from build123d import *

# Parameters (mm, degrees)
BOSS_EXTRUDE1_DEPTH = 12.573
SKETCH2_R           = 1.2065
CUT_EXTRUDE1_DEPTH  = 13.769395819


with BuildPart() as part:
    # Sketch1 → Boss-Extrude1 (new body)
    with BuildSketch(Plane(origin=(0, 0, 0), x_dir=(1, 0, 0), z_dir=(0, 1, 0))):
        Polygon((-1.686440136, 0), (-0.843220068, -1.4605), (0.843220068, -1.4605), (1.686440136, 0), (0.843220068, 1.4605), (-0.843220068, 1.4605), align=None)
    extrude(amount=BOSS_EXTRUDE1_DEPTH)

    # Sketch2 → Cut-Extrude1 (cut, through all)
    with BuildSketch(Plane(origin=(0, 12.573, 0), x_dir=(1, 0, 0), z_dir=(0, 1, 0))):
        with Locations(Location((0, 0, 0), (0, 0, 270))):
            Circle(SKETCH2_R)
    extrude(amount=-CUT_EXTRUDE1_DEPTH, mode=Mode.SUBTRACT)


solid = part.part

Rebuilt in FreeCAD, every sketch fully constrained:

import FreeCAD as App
import Part
import Sketcher
from FreeCAD import Vector
Q = App.Units.Quantity


def add_polygon(sketch, points):
    """Adds a closed chain of lines whose ends are joined by coincident constraints."""
    first, n = sketch.GeometryCount, len(points)
    for a, b in zip(points, points[1:] + points[:1]):
        sketch.addGeometry(Part.LineSegment(App.Vector(*a, 0), App.Vector(*b, 0)), False)
    for i in range(n):
        sketch.addConstraint(Sketcher.Constraint("Coincident", first + i, 2, first + (i + 1) % n, 1))

doc = App.newDocument("Part")
body = doc.addObject("PartDesign::Body", "Body")

sketch1 = body.newObject("Sketcher::SketchObject", "Sketch")
sketch1.AttachmentSupport = (doc.getObject("XZ_Plane"), [""])
sketch1.MapMode = "FlatFace"
add_polygon(sketch1, [(-1.7, 0), (-0.8, 1.5), (0.8, 1.5), (1.7, 0), (0.8, -1.5), (-0.8, -1.5)])
sketch1.addConstraint([
    Sketcher.Constraint("Horizontal", 1),
    Sketcher.Constraint("Horizontal", 4),
    Sketcher.Constraint("Symmetric", 0, 2, 3, 2, -1, 1),
    Sketcher.Constraint("Symmetric", 2, 2, 5, 2, -1, 1),
    Sketcher.Constraint("PointOnObject", 2, 2, -1),
    Sketcher.Constraint("Parallel", 2, 5),
    Sketcher.Constraint("Vertical", 1, 2, 3, 2),
    Sketcher.Constraint("Angle", 0, Q("60 deg")),
    Sketcher.Constraint("DistanceY", 3, 2, 1, 2, Q("0.115 in")),
    Sketcher.Constraint("DistanceX", 1, 1, 1, 2, 1.68644),
])
pad1 = body.newObject("PartDesign::Pad", "Pad")
pad1.Profile = sketch1
pad1.Length = Q("0.495 in")
pad1.Reversed = True

sketch2 = body.newObject("Sketcher::SketchObject", "Sketch001")
sketch2.AttachmentSupport = (doc.getObject("XZ_Plane"), [""])
sketch2.MapMode = "FlatFace"
sketch2.AttachmentOffset = App.Placement(Vector(0, 0, -0.495 * 25.4), App.Rotation())
sketch2.addGeometry(Part.Circle(Vector(0, 0, 0), Vector(0, 0, 1), 1.2), False)
sketch2.addConstraint([
    Sketcher.Constraint("Coincident", 0, 3, -1, 1),
    Sketcher.Constraint("Diameter", 0, Q("0.095 in")),
])
pocket1 = body.newObject("PartDesign::Pocket", "Pocket")
pocket1.Profile = sketch2
pocket1.Type = "ThroughAll"
pocket1.Reversed = True

doc.recompute()
